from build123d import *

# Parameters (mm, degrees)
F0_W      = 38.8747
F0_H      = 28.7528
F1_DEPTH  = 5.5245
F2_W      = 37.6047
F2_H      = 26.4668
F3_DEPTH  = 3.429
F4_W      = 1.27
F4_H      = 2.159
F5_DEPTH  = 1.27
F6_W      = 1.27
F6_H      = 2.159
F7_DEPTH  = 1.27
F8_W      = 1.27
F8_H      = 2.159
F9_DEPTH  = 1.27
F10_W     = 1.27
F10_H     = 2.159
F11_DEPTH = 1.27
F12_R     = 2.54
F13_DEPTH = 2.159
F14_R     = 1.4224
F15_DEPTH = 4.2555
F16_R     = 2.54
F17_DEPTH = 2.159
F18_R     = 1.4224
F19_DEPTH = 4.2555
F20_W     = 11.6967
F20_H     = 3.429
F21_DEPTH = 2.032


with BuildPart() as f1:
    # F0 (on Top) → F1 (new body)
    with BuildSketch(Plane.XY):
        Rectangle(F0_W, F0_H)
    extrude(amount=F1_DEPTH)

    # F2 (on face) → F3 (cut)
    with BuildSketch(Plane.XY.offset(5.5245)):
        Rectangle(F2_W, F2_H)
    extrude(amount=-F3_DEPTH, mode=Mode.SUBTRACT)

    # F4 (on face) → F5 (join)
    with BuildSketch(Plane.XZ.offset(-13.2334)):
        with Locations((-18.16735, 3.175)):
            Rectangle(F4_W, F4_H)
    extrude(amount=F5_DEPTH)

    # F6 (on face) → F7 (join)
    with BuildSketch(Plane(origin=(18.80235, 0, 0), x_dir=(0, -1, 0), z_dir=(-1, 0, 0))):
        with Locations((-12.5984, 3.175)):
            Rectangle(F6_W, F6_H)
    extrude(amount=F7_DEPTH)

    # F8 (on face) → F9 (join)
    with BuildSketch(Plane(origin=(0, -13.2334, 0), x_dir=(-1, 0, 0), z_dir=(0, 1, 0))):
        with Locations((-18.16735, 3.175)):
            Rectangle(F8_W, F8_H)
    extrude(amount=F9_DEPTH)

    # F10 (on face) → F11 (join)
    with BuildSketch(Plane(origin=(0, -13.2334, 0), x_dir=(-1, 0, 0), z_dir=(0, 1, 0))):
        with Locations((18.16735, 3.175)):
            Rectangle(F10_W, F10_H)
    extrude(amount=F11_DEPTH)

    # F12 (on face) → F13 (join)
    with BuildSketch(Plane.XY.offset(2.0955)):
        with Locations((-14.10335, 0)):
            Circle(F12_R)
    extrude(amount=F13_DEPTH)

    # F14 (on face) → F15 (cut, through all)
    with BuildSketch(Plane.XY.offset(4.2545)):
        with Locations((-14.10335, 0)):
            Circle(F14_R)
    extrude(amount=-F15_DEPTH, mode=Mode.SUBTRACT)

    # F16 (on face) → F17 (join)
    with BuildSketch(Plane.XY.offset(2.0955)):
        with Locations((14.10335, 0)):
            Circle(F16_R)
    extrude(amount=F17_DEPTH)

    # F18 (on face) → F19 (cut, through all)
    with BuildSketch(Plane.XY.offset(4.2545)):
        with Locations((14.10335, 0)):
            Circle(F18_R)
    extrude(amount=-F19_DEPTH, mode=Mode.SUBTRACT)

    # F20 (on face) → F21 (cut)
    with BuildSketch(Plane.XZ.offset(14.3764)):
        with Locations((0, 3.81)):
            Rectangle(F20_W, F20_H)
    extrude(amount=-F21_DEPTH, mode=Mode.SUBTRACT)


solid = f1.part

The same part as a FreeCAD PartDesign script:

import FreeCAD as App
import Part
import Sketcher

V = App.Vector
Q = App.Units.Quantity

doc = App.newDocument("Part")
params = doc.addObject("Spreadsheet::Sheet", "Params")
for row, (alias, value) in enumerate([
    ("sketch1_height", "1.132 in"),
    ("pad1_length", "0.2175 in"),
    ("sketch2_height", "1.042 in"),
    ("pocket1_length", "0.135 in"),
    ("sketch3_width", "0.05 in"),
    ("sketch3_height", "0.085 in"),
    ("pad2_length", "0.05 in"),
    ("sketch4_width", "0.05 in"),
    ("sketch4_height", "0.085 in"),
    ("pad3_length", "0.05 in"),
    ("sketch5_width", "0.05 in"),
    ("sketch5_height", "0.085 in"),
    ("pad4_length", "0.05 in"),
    ("sketch6_width", "0.05 in"),
    ("sketch6_height", "0.085 in"),
    ("pad5_length", "0.05 in"),
    ("sketch7_diameter", "0.2 in"),
    ("pad6_length", "0.085 in"),
    ("sketch8_diameter", "0.112 in"),
    ("sketch9_diameter", "0.2 in"),
    ("pad7_length", "0.085 in"),
    ("sketch10_diameter", "0.112 in"),
    ("sketch11_height", "0.135 in"),
    ("pocket4_length", "0.08 in"),
], start=1):
    params.set(f"A{row}", alias)
    params.set(f"B{row}", "=" + value)
    params.setAlias(f"B{row}", alias)

body = doc.addObject("PartDesign::Body", "Body")

sketch1 = doc.addObject("Sketcher::SketchObject", "Sketch")
body.addObject(sketch1)
sketch1.AttachmentSupport = (doc.XY_Plane, [""])
sketch1.MapMode = "FlatFace"
sketch1.addGeometry([
    Part.LineSegment(V(-19, 14, 0), V(-19, -14, 0)),
    Part.LineSegment(V(-19, -14, 0), V(19, -14, 0)),
    Part.LineSegment(V(19, -14, 0), V(19, 14, 0)),
    Part.LineSegment(V(19, 14, 0), V(-19, 14, 0)),
], False)
sketch1.addConstraint([
    Sketcher.Constraint("Coincident", 0, 2, 1, 1),
    Sketcher.Constraint("Coincident", 1, 2, 2, 1),
    Sketcher.Constraint("Coincident", 2, 2, 3, 1),
    Sketcher.Constraint("Coincident", 3, 2, 0, 1),
    Sketcher.Constraint("Vertical", 0),
    Sketcher.Constraint("Horizontal", 1),
    Sketcher.Constraint("Vertical", 2),
    Sketcher.Constraint("Horizontal", 3),
    Sketcher.Constraint("Symmetric", 0, 2, 2, 2, -1, 1),
    Sketcher.Constraint("DistanceY", 0, 2, 0, 1, Q("1.132 in")),
    Sketcher.Constraint("DistanceX", 1, 1, 1, 2, Q("1.5305 in")),
])
sketch1.setExpression("Constraints[9]", "Params.sketch1_height")
pad1 = doc.addObject("PartDesign::Pad", "Pad")
body.addObject(pad1)
pad1.Profile = sketch1
pad1.setExpression("Length", "Params.pad1_length")

sketch2 = doc.addObject("Sketcher::SketchObject", "Sketch001")
body.addObject(sketch2)
sketch2.AttachmentSupport = (doc.XY_Plane, [""])
sketch2.MapMode = "FlatFace"
sketch2.AttachmentOffset = App.Placement(V(0, 0, 0.2175 * 25.4), App.Rotation())
sketch2.addGeometry([
    Part.LineSegment(V(-19, 13, 0), V(-19, -13, 0)),
    Part.LineSegment(V(-19, -13, 0), V(19, -13, 0)),
    Part.LineSegment(V(19, -13, 0), V(19, 13, 0)),
    Part.LineSegment(V(19, 13, 0), V(-19, 13, 0)),
], False)
sketch2.addConstraint([
    Sketcher.Constraint("Coincident", 0, 2, 1, 1),
    Sketcher.Constraint("Coincident", 1, 2, 2, 1),
    Sketcher.Constraint("Coincident", 2, 2, 3, 1),
    Sketcher.Constraint("Coincident", 3, 2, 0, 1),
    Sketcher.Constraint("Vertical", 0),
    Sketcher.Constraint("Horizontal", 1),
    Sketcher.Constraint("Vertical", 2),
    Sketcher.Constraint("Horizontal", 3),
    Sketcher.Constraint("Symmetric", 0, 2, 2, 2, -1, 1),
    Sketcher.Constraint("DistanceY", 0, 2, 0, 1, Q("1.042 in")),
    Sketcher.Constraint("DistanceX", 1, 1, 1, 2, Q("1.4805 in")),
])
sketch2.setExpression("Constraints[9]", "Params.sketch2_height")
pocket1 = doc.addObject("PartDesign::Pocket", "Pocket")
body.addObject(pocket1)
pocket1.Profile = sketch2
pocket1.setExpression("Length", "Params.pocket1_length")

sketch3 = doc.addObject("Sketcher::SketchObject", "Sketch002")
body.addObject(sketch3)
sketch3.AttachmentSupport = (doc.XZ_Plane, [""])
sketch3.MapMode = "FlatFace"
sketch3.AttachmentOffset = App.Placement(V(0, 0, -0.521 * 25.4), App.Rotation())
sketch3.addGeometry([
    Part.LineSegment(V(-18.8, 4.3, 0), V(-18.8, 2.1, 0)),
    Part.LineSegment(V(-18.8, 2.1, 0), V(-17.5, 2.1, 0)),
    Part.LineSegment(V(-17.5, 2.1, 0), V(-17.5, 4.3, 0)),
    Part.LineSegment(V(-17.5, 4.3, 0), V(-18.8, 4.3, 0)),
], False)
sketch3.addConstraint([
    Sketcher.Constraint("Coincident", 0, 2, 1, 1),
    Sketcher.Constraint("Coincident", 1, 2, 2, 1),
    Sketcher.Constraint("Coincident", 2, 2, 3, 1),
    Sketcher.Constraint("Coincident", 3, 2, 0, 1),
    Sketcher.Constraint("Vertical", 0),
    Sketcher.Constraint("Horizontal", 1),
    Sketcher.Constraint("Vertical", 2),
    Sketcher.Constraint("Horizontal", 3),
    Sketcher.Constraint("DistanceX", 1, 1, 1, 2, Q("0.05 in")),
    Sketcher.Constraint("DistanceY", 0, 2, 0, 1, Q("0.085 in")),
    Sketcher.Constraint("DistanceY", -1, 1, 0, 2, Q("0.0825 in")),
    Sketcher.Constraint("DistanceX", 0, 2, -1, 1, Q("18.80235 mm")),
])
sketch3.setExpression("Constraints[8]", "Params.sketch3_width")
sketch3.setExpression("Constraints[9]", "Params.sketch3_height")
pad2 = doc.addObject("PartDesign::Pad", "Pad001")
body.addObject(pad2)
pad2.Profile = sketch3
pad2.setExpression("Length", "Params.pad2_length")

sketch4 = doc.addObject("Sketcher::SketchObject", "Sketch003")
body.addObject(sketch4)
sketch4.AttachmentSupport = (doc.YZ_Plane, [""])
sketch4.MapMode = "FlatFace"
sketch4.AttachmentOffset = App.Placement(V(0, 0, 18.80235), App.Rotation())
sketch4.addGeometry([
    Part.LineSegment(V(13.2, 4.3, 0), V(13.2, 2.1, 0)),
    Part.LineSegment(V(13.2, 2.1, 0), V(12, 2.1, 0)),
    Part.LineSegment(V(12, 2.1, 0), V(12, 4.3, 0)),
    Part.LineSegment(V(12, 4.3, 0), V(13.2, 4.3, 0)),
], False)
sketch4.addConstraint([
    Sketcher.Constraint("Coincident", 0, 2, 1, 1),
    Sketcher.Constraint("Coincident", 1, 2, 2, 1),
    Sketcher.Constraint("Coincident", 2, 2, 3, 1),
    Sketcher.Constraint("Coincident", 3, 2, 0, 1),
    Sketcher.Constraint("Vertical", 0),
    Sketcher.Constraint("Horizontal", 1),
    Sketcher.Constraint("Vertical", 2),
    Sketcher.Constraint("Horizontal", 3),
    Sketcher.Constraint("DistanceX", 1, 2, 1, 1, Q("0.05 in")),
    Sketcher.Constraint("DistanceY", 0, 2, 0, 1, Q("0.085 in")),
    Sketcher.Constraint("DistanceX", -1, 1, 0, 2, Q("0.521 in")),
    Sketcher.Constraint("DistanceY", -1, 1, 0, 2, Q("0.0825 in")),
])
sketch4.setExpression("Constraints[8]", "Params.sketch4_width")
sketch4.setExpression("Constraints[9]", "Params.sketch4_height")
pad3 = doc.addObject("PartDesign::Pad", "Pad002")
body.addObject(pad3)
pad3.Profile = sketch4
pad3.setExpression("Length", "Params.pad3_length")
pad3.Reversed = True

sketch5 = doc.addObject("Sketcher::SketchObject", "Sketch004")
body.addObject(sketch5)
sketch5.AttachmentSupport = (doc.XZ_Plane, [""])
sketch5.MapMode = "FlatFace"
sketch5.AttachmentOffset = App.Placement(V(0, 0, 0.521 * 25.4), App.Rotation())
sketch5.addGeometry([
    Part.LineSegment(V(18.8, 4.3, 0), V(18.8, 2.1, 0)),
    Part.LineSegment(V(18.8, 2.1, 0), V(17.5, 2.1, 0)),
    Part.LineSegment(V(17.5, 2.1, 0), V(17.5, 4.3, 0)),
    Part.LineSegment(V(17.5, 4.3, 0), V(18.8, 4.3, 0)),
], False)
sketch5.addConstraint([
    Sketcher.Constraint("Coincident", 0, 2, 1, 1),
    Sketcher.Constraint("Coincident", 1, 2, 2, 1),
    Sketcher.Constraint("Coincident", 2, 2, 3, 1),
    Sketcher.Constraint("Coincident", 3, 2, 0, 1),
    Sketcher.Constraint("Vertical", 0),
    Sketcher.Constraint("Horizontal", 1),
    Sketcher.Constraint("Vertical", 2),
    Sketcher.Constraint("Horizontal", 3),
    Sketcher.Constraint("DistanceX", 1, 2, 1, 1, Q("0.05 in")),
    Sketcher.Constraint("DistanceY", 0, 2, 0, 1, Q("0.085 in")),
    Sketcher.Constraint("DistanceY", -1, 1, 0, 2, Q("0.0825 in")),
    Sketcher.Constraint("DistanceX", -1, 1, 0, 2, Q("18.80235 mm")),
])
sketch5.setExpression("Constraints[8]", "Params.sketch5_width")
sketch5.setExpression("Constraints[9]", "Params.sketch5_height")
pad4 = doc.addObject("PartDesign::Pad", "Pad003")
body.addObject(pad4)
pad4.Profile = sketch5
pad4.setExpression("Length", "Params.pad4_length")
pad4.Reversed = True

sketch6 = doc.addObject("Sketcher::SketchObject", "Sketch005")
body.addObject(sketch6)
sketch6.AttachmentSupport = (doc.XZ_Plane, [""])
sketch6.MapMode = "FlatFace"
sketch6.AttachmentOffset = App.Placement(V(0, 0, 0.521 * 25.4), App.Rotation())
sketch6.addGeometry([
    Part.LineSegment(V(-17.5, 4.3, 0), V(-17.5, 2.1, 0)),
    Part.LineSegment(V(-17.5, 2.1, 0), V(-18.8, 2.1, 0)),
    Part.LineSegment(V(-18.8, 2.1, 0), V(-18.8, 4.3, 0)),
    Part.LineSegment(V(-18.8, 4.3, 0), V(-17.5, 4.3, 0)),
], False)
sketch6.addConstraint([
    Sketcher.Constraint("Coincident", 0, 2, 1, 1),
    Sketcher.Constraint("Coincident", 1, 2, 2, 1),
    Sketcher.Constraint("Coincident", 2, 2, 3, 1),
    Sketcher.Constraint("Coincident", 3, 2, 0, 1),
    Sketcher.Constraint("Vertical", 0),
    Sketcher.Constraint("Horizontal", 1),
    Sketcher.Constraint("Vertical", 2),
    Sketcher.Constraint("Horizontal", 3),
    Sketcher.Constraint("DistanceX", 1, 2, 1, 1, Q("0.05 in")),
    Sketcher.Constraint("DistanceY", 0, 2, 0, 1, Q("0.085 in")),
    Sketcher.Constraint("DistanceY", -1, 1, 0, 2, Q("0.0825 in")),
    Sketcher.Constraint("DistanceX", 0, 2, -1, 1, Q("17.53235 mm")),
])
sketch6.setExpression("Constraints[8]", "Params.sketch6_width")
sketch6.setExpression("Constraints[9]", "Params.sketch6_height")
pad5 = doc.addObject("PartDesign::Pad", "Pad004")
body.addObject(pad5)
pad5.Profile = sketch6
pad5.setExpression("Length", "Params.pad5_length")
pad5.Reversed = True

sketch7 = doc.addObject("Sketcher::SketchObject", "Sketch006")
body.addObject(sketch7)
sketch7.AttachmentSupport = (doc.XY_Plane, [""])
sketch7.MapMode = "FlatFace"
sketch7.AttachmentOffset = App.Placement(V(0, 0, 0.0825 * 25.4), App.Rotation())
sketch7.addGeometry(Part.Circle(V(-14.1, 0, 0), V(0, 0, 1), 2.5), False)
sketch7.addConstraint([
    Sketcher.Constraint("PointOnObject", 0, 3, -1),
    Sketcher.Constraint("Diameter", 0, Q("0.2 in")),
    Sketcher.Constraint("DistanceX", 0, 3, -1, 1, Q("14.10335 mm")),
])
sketch7.setExpression("Constraints[1]", "Params.sketch7_diameter")
pad6 = doc.addObject("PartDesign::Pad", "Pad005")
body.addObject(pad6)
pad6.Profile = sketch7
pad6.setExpression("Length", "Params.pad6_length")

sketch8 = doc.addObject("Sketcher::SketchObject", "Sketch007")
body.addObject(sketch8)
sketch8.AttachmentSupport = (doc.XY_Plane, [""])
sketch8.MapMode = "FlatFace"
sketch8.AttachmentOffset = App.Placement(V(0, 0, 0.1675 * 25.4), App.Rotation())
sketch8.addGeometry(Part.Circle(V(-14.1, 0, 0), V(0, 0, 1), 1.4), False)
sketch8.addConstraint([
    Sketcher.Constraint("PointOnObject", 0, 3, -1),
    Sketcher.Constraint("Diameter", 0, Q("0.112 in")),
    Sketcher.Constraint("DistanceX", 0, 3, -1, 1, Q("14.10335 mm")),
])
sketch8.setExpression("Constraints[1]", "Params.sketch8_diameter")
pocket2 = doc.addObject("PartDesign::Pocket", "Pocket001")
body.addObject(pocket2)
pocket2.Profile = sketch8
pocket2.Type = "ThroughAll"

sketch9 = doc.addObject("Sketcher::SketchObject", "Sketch008")
body.addObject(sketch9)
sketch9.AttachmentSupport = (doc.XY_Plane, [""])
sketch9.MapMode = "FlatFace"
sketch9.AttachmentOffset = App.Placement(V(0, 0, 0.0825 * 25.4), App.Rotation())
sketch9.addGeometry(Part.Circle(V(14.1, 0, 0), V(0, 0, 1), 2.5), False)
sketch9.addConstraint([
    Sketcher.Constraint("PointOnObject", 0, 3, -1),
    Sketcher.Constraint("Diameter", 0, Q("0.2 in")),
    Sketcher.Constraint("DistanceX", -1, 1, 0, 3, Q("14.10335 mm")),
])
sketch9.setExpression("Constraints[1]", "Params.sketch9_diameter")
pad7 = doc.addObject("PartDesign::Pad", "Pad006")
body.addObject(pad7)
pad7.Profile = sketch9
pad7.setExpression("Length", "Params.pad7_length")

sketch10 = doc.addObject("Sketcher::SketchObject", "Sketch009")
body.addObject(sketch10)
sketch10.AttachmentSupport = (doc.XY_Plane, [""])
sketch10.MapMode = "FlatFace"
sketch10.AttachmentOffset = App.Placement(V(0, 0, 0.1675 * 25.4), App.Rotation())
sketch10.addGeometry(Part.Circle(V(14.1, 0, 0), V(0, 0, 1), 1.4), False)
sketch10.addConstraint([
    Sketcher.Constraint("PointOnObject", 0, 3, -1),
    Sketcher.Constraint("Diameter", 0, Q("0.112 in")),
    Sketcher.Constraint("DistanceX", -1, 1, 0, 3, Q("14.10335 mm")),
])
sketch10.setExpression("Constraints[1]", "Params.sketch10_diameter")
pocket3 = doc.addObject("PartDesign::Pocket", "Pocket002")
body.addObject(pocket3)
pocket3.Profile = sketch10
pocket3.Type = "ThroughAll"

sketch11 = doc.addObject("Sketcher::SketchObject", "Sketch010")
body.addObject(sketch11)
sketch11.AttachmentSupport = (doc.XZ_Plane, [""])
sketch11.MapMode = "FlatFace"
sketch11.AttachmentOffset = App.Placement(V(0, 0, 0.566 * 25.4), App.Rotation())
sketch11.addGeometry([
    Part.LineSegment(V(-5.8, 5.5, 0), V(-5.8, 2.1, 0)),
    Part.LineSegment(V(-5.8, 2.1, 0), V(5.8, 2.1, 0)),
    Part.LineSegment(V(5.8, 2.1, 0), V(5.8, 5.5, 0)),
    Part.LineSegment(V(5.8, 5.5, 0), V(-5.8, 5.5, 0)),
], False)
sketch11.addConstraint([
    Sketcher.Constraint("Coincident", 0, 2, 1, 1),
    Sketcher.Constraint("Coincident", 1, 2, 2, 1),
    Sketcher.Constraint("Coincident", 2, 2, 3, 1),
    Sketcher.Constraint("Coincident", 3, 2, 0, 1),
    Sketcher.Constraint("Vertical", 0),
    Sketcher.Constraint("Horizontal", 1),
    Sketcher.Constraint("Vertical", 2),
    Sketcher.Constraint("Horizontal", 3),
    Sketcher.Constraint("DistanceY", 0, 2, 0, 1, Q("0.135 in")),
    Sketcher.Constraint("DistanceX", 1, 1, 1, 2, Q("0.4605 in")),
    Sketcher.Constraint("DistanceY", -1, 1, 0, 2, Q("0.0825 in")),
    Sketcher.Constraint("DistanceX", 0, 2, -1, 1, Q("5.84835 mm")),
])
sketch11.setExpression("Constraints[8]", "Params.sketch11_height")
pocket4 = doc.addObject("PartDesign::Pocket", "Pocket003")
body.addObject(pocket4)
pocket4.Profile = sketch11
pocket4.setExpression("Length", "Params.pocket4_length")

doc.recompute()
